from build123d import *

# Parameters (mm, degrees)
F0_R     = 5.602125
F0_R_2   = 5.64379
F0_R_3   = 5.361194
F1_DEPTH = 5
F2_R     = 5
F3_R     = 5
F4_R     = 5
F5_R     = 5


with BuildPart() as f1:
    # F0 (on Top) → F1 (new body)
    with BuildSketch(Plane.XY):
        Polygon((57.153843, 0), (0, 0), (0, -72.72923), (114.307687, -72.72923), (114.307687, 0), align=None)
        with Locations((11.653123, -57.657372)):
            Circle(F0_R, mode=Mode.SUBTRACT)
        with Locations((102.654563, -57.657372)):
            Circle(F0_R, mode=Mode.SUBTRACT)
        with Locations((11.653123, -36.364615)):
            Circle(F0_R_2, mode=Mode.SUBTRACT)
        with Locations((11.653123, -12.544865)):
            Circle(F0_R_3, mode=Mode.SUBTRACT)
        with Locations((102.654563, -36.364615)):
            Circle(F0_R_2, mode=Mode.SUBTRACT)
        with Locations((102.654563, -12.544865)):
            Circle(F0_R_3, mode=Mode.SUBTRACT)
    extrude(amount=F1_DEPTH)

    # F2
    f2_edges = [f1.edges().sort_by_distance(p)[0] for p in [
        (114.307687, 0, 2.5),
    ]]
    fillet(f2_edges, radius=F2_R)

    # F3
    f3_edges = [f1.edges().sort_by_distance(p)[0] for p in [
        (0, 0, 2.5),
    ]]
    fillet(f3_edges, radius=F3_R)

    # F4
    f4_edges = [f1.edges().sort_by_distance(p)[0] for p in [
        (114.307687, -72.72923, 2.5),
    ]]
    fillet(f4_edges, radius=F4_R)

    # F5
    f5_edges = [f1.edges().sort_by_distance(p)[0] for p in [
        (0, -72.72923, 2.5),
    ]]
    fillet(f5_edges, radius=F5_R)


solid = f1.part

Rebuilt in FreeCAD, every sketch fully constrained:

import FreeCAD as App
import Part
import Sketcher

V = App.Vector


def edges_at(feature, points):
    """Names of the edges that pass closest to the given points."""
    edges = feature.Shape.Edges
    near = lambda p: min(range(len(edges)), key=lambda i: edges[i].distToShape(Part.Vertex(*p))[0])
    return sorted({f"Edge{near(p) + 1}" for p in points})


def add_polygon(sketch, points):
    """Adds a closed chain of lines whose ends are joined by coincident constraints."""
    first, n = sketch.GeometryCount, len(points)
    for a, b in zip(points, points[1:] + points[:1]):
        sketch.addGeometry(Part.LineSegment(App.Vector(*a, 0), App.Vector(*b, 0)), False)
    for i in range(n):
        sketch.addConstraint(Sketcher.Constraint("Coincident", first + i, 2, first + (i + 1) % n, 1))

doc = App.newDocument("Part")
params = doc.addObject("Spreadsheet::Sheet", "Params")
for row, (alias, value) in enumerate([
    ("pad1_length", "5 mm"),
    ("fillet_radius", "5 mm"),
    ("fillet2_radius", "5 mm"),
    ("fillet3_radius", "5 mm"),
    ("fillet4_radius", "5 mm"),
], start=1):
    params.set(f"A{row}", alias)
    params.set(f"B{row}", "=" + value)
    params.setAlias(f"B{row}", alias)

body = doc.addObject("PartDesign::Body", "Body")

# Sketch on XY plane
sketch1 = body.newObject("Sketcher::SketchObject", "Sketch")
sketch1.AttachmentSupport = (doc.getObject("XY_Plane"), [""])
sketch1.MapMode = "FlatFace"
add_polygon(sketch1, [(0, 0), (0, -73), (114, -73), (114, 0)])  # lines 0-3
sketch1.addGeometry(Part.Circle(V(12, -58, 0), V(0, 0, 1), 6), False)  # 4
sketch1.addGeometry(Part.Circle(V(12, -36, 0), V(0, 0, 1), 6), False)  # 5
sketch1.addGeometry(Part.Circle(V(103, -58, 0), V(0, 0, 1), 6), False)  # 6
sketch1.addGeometry(Part.Circle(V(103, -36, 0), V(0, 0, 1), 6), False)  # 7
sketch1.addGeometry(Part.Circle(V(12, -13, 0), V(0, 0, 1), 5), False)  # 8
sketch1.addGeometry(Part.Circle(V(103, -13, 0), V(0, 0, 1), 5), False)  # 9
sketch1.addConstraint(Sketcher.Constraint("Vertical", 0))
sketch1.addConstraint(Sketcher.Constraint("Horizontal", 1))
sketch1.addConstraint(Sketcher.Constraint("Vertical", 2))
sketch1.addConstraint(Sketcher.Constraint("Horizontal", 3))
sketch1.addConstraint(Sketcher.Constraint("Coincident", 3, 2, -1, 1))
sketch1.addConstraint(Sketcher.Constraint("Equal", 4, 6))
sketch1.addConstraint(Sketcher.Constraint("Equal", 5, 7))
sketch1.addConstraint(Sketcher.Constraint("Equal", 8, 9))
sketch1.addConstraint(Sketcher.Constraint("Horizontal", 4, 3, 6, 3))
sketch1.addConstraint(Sketcher.Constraint("Horizontal", 5, 3, 7, 3))
sketch1.addConstraint(Sketcher.Constraint("Horizontal", 8, 3, 9, 3))
sketch1.addConstraint(Sketcher.Constraint("Vertical", 4, 3, 5, 3))
sketch1.addConstraint(Sketcher.Constraint("Vertical", 6, 3, 7, 3))
sketch1.addConstraint(Sketcher.Constraint("Vertical", 5, 3, 8, 3))
sketch1.addConstraint(Sketcher.Constraint("Vertical", 7, 3, 9, 3))
sketch1.addConstraint(Sketcher.Constraint("Diameter", 4, 11.20425))
sketch1.addConstraint(Sketcher.Constraint("Diameter", 5, 11.28758))
sketch1.addConstraint(Sketcher.Constraint("Diameter", 8, 10.722388))
sketch1.addConstraint(Sketcher.Constraint("DistanceY", 0, 2, 0, 1, 72.72923))
sketch1.addConstraint(Sketcher.Constraint("DistanceX", 1, 1, 1, 2, 114.307687))
sketch1.addConstraint(Sketcher.Constraint("DistanceX", 4, 3, 6, 3, 91.00144))
sketch1.addConstraint(Sketcher.Constraint("DistanceY", 5, 3, 8, 3, 23.81975))
sketch1.addConstraint(Sketcher.Constraint("DistanceX", -1, 1, 4, 3, 11.653123))
sketch1.addConstraint(Sketcher.Constraint("DistanceY", 4, 3, -1, 1, 57.657372))
sketch1.addConstraint(Sketcher.Constraint("DistanceY", 5, 3, -1, 1, 36.364615))
pad1 = body.newObject("PartDesign::Pad", "Pad")
pad1.Profile = sketch1
pad1.setExpression("Length", "Params.pad1_length")
doc.recompute()

fillet = body.newObject("PartDesign::Fillet", "Fillet")
fillet.Base = (pad1, edges_at(pad1, [(114.308, 0, 2.5)]))
fillet.setExpression("Radius", "Params.fillet_radius")
doc.recompute()

fillet2 = body.newObject("PartDesign::Fillet", "Fillet001")
fillet2.Base = (fillet, edges_at(fillet, [(0, 0, 2.5)]))
fillet2.setExpression("Radius", "Params.fillet2_radius")
doc.recompute()

fillet3 = body.newObject("PartDesign::Fillet", "Fillet002")
fillet3.Base = (fillet2, edges_at(fillet2, [(114.308, -72.729, 2.5)]))
fillet3.setExpression("Radius", "Params.fillet3_radius")
doc.recompute()

fillet4 = body.newObject("PartDesign::Fillet", "Fillet003")
fillet4.Base = (fillet3, edges_at(fillet3, [(0, -72.729, 2.5)]))
fillet4.setExpression("Radius", "Params.fillet4_radius")

doc.recompute()
